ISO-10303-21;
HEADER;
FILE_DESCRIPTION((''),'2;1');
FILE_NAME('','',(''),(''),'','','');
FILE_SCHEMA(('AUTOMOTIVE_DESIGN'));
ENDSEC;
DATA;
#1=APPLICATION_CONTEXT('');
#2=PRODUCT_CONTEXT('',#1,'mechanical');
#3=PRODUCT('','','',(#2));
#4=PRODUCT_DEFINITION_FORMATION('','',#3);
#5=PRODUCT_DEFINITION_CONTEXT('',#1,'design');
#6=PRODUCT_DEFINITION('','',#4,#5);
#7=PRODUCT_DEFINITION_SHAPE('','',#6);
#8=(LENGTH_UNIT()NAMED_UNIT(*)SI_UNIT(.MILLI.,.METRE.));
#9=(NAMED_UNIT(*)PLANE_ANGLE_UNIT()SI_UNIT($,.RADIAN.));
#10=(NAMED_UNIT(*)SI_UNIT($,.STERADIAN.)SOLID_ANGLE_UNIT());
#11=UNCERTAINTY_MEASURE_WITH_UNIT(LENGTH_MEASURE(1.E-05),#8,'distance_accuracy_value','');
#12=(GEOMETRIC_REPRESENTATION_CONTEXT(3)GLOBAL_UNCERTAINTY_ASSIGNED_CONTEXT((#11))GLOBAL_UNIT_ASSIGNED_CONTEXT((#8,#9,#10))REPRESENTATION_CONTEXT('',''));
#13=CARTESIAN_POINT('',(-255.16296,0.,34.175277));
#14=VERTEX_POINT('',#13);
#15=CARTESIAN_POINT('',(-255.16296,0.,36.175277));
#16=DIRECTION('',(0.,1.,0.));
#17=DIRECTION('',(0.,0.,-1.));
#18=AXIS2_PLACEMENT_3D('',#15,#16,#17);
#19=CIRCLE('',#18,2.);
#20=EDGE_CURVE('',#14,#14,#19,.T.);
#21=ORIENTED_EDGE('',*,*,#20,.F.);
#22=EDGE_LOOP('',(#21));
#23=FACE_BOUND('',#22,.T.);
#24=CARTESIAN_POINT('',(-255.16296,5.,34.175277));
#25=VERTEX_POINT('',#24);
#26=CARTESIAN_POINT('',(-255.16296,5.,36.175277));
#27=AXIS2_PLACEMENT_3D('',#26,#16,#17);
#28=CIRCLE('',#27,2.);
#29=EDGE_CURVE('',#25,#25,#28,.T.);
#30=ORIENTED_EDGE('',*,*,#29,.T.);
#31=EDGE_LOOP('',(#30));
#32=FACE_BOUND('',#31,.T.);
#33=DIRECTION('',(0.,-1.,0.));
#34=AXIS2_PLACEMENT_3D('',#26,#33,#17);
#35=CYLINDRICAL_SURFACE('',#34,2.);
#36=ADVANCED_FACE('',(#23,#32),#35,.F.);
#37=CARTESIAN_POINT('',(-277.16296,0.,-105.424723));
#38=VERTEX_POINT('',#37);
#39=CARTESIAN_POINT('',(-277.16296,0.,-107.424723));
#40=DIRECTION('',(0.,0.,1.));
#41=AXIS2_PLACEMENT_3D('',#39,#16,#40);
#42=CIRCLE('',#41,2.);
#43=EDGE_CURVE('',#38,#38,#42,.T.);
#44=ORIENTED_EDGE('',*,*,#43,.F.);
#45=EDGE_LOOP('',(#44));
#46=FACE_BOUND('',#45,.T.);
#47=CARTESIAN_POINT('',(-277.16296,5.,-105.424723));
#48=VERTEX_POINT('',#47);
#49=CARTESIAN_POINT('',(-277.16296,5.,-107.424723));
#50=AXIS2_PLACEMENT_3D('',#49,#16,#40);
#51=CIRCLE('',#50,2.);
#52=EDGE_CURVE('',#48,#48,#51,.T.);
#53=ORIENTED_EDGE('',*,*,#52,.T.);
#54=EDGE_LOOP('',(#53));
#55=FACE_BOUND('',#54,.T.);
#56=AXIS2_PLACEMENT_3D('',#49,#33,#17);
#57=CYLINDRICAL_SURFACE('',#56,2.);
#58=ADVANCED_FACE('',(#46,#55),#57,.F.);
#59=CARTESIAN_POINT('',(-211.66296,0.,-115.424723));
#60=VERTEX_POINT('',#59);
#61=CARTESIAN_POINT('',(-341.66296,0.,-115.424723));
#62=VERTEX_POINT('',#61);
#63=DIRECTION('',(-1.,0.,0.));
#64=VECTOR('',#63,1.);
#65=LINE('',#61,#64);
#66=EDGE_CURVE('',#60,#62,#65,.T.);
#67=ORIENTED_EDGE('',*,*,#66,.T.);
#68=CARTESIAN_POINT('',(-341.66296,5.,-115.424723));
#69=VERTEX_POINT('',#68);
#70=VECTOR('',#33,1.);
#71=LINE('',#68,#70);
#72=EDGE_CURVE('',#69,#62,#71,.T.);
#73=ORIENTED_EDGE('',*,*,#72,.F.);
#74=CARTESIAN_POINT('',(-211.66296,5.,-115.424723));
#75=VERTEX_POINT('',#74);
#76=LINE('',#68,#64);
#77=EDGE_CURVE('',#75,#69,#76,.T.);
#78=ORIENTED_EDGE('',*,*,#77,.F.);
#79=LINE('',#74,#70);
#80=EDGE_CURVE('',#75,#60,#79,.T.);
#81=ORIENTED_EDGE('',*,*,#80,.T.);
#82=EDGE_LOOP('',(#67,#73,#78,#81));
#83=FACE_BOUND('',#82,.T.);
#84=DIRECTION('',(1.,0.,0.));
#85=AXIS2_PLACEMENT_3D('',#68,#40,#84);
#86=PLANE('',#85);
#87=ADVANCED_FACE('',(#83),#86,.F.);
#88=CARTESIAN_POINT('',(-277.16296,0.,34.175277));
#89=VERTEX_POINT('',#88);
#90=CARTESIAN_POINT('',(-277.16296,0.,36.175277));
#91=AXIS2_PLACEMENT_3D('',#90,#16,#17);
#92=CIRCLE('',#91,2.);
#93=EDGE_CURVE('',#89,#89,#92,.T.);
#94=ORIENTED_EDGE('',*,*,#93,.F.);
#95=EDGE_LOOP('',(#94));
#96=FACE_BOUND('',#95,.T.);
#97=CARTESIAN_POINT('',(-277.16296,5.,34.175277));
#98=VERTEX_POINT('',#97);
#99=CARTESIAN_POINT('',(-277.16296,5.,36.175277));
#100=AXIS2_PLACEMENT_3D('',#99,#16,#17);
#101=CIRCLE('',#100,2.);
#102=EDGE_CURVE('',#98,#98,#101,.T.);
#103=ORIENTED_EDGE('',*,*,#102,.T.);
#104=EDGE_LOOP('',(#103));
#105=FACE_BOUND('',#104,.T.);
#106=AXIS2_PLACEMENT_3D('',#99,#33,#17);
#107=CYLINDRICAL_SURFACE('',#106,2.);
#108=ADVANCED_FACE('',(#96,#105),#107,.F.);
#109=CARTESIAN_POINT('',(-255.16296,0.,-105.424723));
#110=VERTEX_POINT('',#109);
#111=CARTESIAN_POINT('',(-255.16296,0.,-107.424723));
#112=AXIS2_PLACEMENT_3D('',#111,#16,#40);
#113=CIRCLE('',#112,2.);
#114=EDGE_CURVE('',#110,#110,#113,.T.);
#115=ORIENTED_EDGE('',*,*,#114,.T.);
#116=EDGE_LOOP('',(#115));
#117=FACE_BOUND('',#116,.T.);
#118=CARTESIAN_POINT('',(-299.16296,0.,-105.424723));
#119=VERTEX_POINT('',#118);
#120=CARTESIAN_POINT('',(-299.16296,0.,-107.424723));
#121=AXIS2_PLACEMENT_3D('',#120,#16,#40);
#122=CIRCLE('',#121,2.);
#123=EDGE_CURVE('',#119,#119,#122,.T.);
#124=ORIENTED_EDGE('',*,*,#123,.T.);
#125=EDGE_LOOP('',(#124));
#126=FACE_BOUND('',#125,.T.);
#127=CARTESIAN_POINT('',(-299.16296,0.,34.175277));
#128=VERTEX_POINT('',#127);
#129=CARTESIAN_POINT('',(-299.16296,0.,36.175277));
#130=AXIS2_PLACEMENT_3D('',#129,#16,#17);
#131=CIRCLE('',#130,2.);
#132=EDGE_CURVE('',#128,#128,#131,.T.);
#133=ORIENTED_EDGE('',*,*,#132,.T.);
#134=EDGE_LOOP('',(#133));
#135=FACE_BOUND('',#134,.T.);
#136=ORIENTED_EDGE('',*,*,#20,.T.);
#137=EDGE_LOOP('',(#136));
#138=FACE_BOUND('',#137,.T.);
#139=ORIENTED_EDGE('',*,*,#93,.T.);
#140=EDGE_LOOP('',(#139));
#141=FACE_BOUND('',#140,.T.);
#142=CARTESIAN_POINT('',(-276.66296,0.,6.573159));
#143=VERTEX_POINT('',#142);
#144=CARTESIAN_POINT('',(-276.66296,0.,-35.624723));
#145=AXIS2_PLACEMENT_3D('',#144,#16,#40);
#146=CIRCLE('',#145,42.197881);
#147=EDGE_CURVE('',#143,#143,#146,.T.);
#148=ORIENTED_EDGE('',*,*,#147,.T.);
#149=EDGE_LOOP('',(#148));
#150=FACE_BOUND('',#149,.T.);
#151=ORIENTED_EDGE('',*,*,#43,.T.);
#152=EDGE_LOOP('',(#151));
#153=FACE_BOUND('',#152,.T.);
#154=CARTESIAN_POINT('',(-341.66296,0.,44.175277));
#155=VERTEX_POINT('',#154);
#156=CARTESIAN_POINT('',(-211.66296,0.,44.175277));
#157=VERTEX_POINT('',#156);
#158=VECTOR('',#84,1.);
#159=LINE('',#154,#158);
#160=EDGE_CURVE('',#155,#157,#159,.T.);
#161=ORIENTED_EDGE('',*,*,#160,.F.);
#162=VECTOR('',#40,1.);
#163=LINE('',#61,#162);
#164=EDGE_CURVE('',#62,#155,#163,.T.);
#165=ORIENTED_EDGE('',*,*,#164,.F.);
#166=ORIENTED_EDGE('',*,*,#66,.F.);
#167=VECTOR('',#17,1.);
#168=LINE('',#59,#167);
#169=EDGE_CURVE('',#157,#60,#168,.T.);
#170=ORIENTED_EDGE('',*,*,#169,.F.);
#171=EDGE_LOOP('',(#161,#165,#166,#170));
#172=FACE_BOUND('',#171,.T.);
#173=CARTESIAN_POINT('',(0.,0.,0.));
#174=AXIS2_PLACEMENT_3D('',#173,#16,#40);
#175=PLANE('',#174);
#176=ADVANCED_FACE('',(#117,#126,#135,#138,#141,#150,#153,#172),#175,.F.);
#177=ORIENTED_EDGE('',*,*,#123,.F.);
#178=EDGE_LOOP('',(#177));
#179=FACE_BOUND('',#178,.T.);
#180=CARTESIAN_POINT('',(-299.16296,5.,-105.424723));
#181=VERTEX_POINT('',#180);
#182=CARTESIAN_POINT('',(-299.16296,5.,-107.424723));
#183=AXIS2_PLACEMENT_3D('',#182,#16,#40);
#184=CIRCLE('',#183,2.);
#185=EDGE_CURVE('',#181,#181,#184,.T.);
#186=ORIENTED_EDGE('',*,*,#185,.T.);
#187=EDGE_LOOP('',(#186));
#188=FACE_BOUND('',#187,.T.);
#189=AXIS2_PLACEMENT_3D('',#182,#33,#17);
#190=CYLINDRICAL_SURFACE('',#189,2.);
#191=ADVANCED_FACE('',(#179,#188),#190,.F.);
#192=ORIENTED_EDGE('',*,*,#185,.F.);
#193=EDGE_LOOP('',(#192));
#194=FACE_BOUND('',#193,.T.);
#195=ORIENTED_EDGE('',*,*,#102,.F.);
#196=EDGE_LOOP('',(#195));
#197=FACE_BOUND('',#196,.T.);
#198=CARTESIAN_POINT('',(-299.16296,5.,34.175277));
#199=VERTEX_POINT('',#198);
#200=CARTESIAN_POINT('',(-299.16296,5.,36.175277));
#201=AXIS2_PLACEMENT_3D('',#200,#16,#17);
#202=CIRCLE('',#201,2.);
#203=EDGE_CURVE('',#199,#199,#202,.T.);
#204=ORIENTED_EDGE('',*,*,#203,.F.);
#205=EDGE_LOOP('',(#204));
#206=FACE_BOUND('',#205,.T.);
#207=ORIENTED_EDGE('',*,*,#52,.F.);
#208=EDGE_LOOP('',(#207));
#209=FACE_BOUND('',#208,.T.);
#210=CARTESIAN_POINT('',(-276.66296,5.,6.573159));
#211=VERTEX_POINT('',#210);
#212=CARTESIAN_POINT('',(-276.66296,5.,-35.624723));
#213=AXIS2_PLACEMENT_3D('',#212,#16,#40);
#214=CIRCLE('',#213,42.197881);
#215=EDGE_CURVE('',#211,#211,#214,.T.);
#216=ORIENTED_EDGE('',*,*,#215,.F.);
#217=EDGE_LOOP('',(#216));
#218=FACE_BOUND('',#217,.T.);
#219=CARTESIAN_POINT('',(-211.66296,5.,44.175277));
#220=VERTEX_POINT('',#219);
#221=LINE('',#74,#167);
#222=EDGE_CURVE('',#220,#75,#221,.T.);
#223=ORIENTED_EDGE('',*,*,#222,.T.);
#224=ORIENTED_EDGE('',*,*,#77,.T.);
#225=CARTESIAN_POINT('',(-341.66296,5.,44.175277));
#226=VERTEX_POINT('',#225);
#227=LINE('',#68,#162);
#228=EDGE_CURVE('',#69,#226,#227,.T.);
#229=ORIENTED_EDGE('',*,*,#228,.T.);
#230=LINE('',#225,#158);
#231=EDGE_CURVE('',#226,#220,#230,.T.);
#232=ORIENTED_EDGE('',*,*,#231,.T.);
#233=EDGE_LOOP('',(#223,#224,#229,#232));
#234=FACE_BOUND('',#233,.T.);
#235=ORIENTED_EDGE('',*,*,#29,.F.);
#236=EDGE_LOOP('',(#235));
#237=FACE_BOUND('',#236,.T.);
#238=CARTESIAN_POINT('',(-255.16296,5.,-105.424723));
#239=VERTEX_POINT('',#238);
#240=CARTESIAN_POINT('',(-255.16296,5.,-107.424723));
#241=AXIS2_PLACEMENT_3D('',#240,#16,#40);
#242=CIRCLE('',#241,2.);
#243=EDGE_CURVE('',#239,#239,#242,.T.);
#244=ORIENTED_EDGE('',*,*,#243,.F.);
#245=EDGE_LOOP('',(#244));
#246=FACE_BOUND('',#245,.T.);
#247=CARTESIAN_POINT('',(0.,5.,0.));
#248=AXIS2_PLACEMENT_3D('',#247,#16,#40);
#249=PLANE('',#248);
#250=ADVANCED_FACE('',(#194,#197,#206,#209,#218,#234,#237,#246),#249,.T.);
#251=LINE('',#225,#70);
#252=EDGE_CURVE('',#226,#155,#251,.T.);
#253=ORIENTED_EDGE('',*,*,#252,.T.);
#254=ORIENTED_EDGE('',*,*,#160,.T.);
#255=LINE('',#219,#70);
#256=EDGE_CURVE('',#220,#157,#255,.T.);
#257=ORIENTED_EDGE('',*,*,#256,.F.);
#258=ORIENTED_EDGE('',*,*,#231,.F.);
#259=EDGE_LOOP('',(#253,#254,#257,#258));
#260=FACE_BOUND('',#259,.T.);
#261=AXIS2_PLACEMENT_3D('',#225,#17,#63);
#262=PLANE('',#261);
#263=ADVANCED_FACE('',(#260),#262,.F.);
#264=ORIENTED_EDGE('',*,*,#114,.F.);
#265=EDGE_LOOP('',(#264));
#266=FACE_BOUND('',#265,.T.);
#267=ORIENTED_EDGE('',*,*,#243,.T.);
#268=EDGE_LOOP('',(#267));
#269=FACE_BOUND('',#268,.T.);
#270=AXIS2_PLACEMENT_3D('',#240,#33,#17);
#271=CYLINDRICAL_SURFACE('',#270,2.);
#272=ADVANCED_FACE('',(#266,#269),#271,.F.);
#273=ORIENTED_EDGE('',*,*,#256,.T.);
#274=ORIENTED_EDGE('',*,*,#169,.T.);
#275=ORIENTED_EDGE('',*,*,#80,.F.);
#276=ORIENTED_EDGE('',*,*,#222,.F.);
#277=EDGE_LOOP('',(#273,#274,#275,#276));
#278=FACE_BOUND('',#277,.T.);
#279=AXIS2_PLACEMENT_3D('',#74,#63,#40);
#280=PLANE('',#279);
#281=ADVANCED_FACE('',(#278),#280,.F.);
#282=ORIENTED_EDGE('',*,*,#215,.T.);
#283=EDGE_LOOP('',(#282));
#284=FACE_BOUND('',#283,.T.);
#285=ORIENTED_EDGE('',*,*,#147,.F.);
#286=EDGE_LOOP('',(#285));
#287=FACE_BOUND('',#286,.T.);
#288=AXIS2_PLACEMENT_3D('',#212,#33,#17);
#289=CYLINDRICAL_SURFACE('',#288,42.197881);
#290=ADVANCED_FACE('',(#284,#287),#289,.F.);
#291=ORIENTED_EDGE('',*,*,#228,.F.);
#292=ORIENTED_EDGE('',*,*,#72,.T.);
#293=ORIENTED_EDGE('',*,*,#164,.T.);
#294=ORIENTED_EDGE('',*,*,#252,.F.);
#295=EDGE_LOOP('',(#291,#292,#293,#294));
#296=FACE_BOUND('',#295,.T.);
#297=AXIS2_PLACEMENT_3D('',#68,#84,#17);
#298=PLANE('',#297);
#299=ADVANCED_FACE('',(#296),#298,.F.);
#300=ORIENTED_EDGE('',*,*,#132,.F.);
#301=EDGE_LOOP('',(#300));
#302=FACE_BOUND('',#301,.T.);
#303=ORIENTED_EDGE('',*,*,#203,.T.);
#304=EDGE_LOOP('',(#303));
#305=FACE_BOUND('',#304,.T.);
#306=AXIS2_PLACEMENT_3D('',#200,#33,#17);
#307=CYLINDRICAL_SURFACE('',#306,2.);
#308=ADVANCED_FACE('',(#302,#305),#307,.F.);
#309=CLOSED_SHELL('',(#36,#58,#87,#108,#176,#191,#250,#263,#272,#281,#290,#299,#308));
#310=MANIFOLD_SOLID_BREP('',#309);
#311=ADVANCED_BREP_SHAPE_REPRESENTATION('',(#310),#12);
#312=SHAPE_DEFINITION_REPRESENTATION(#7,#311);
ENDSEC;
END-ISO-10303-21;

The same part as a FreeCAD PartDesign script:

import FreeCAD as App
import Part
import Sketcher
from FreeCAD import Vector
Q = App.Units.Quantity


def add_polygon(sketch, points):
    """Adds a closed chain of lines whose ends are joined by coincident constraints."""
    first, n = sketch.GeometryCount, len(points)
    for a, b in zip(points, points[1:] + points[:1]):
        sketch.addGeometry(Part.LineSegment(App.Vector(*a, 0), App.Vector(*b, 0)), False)
    for i in range(n):
        sketch.addConstraint(Sketcher.Constraint("Coincident", first + i, 2, first + (i + 1) % n, 1))

doc = App.newDocument("Part")
body = doc.addObject("PartDesign::Body", "Body")

# Sketch on XZ plane
sketch1 = body.newObject("Sketcher::SketchObject", "Sketch")
sketch1.AttachmentSupport = (doc.getObject("XZ_Plane"), [""])
sketch1.MapMode = "FlatFace"
add_polygon(sketch1, [(-341.7, -115.4), (-341.7, 44.2), (-211.7, 44.2), (-211.7, -115.4)])  # lines 0-3
sketch1.addGeometry(Part.Circle(Vector(-299.2, 36.2, 0), Vector(0, 0, 1), 2), False)  # 4
sketch1.addGeometry(Part.Circle(Vector(-277.2, 36.2, 0), Vector(0, 0, 1), 2), False)  # 5
sketch1.addGeometry(Part.Circle(Vector(-255.2, 36.2, 0), Vector(0, 0, 1), 2), False)  # 6
sketch1.addGeometry(Part.Circle(Vector(-276.7, -35.6, 0), Vector(0, 0, 1), 42.2), False)  # 7
sketch1.addGeometry(Part.Circle(Vector(-299.2, -107.4, 0), Vector(0, 0, 1), 2), False)  # 8
sketch1.addGeometry(Part.Circle(Vector(-277.2, -107.4, 0), Vector(0, 0, 1), 2), False)  # 9
sketch1.addGeometry(Part.Circle(Vector(-255.2, -107.4, 0), Vector(0, 0, 1), 2), False)  # 10
sketch1.addConstraint(Sketcher.Constraint("Vertical", 0))
sketch1.addConstraint(Sketcher.Constraint("Horizontal", 1))
sketch1.addConstraint(Sketcher.Constraint("Vertical", 2))
sketch1.addConstraint(Sketcher.Constraint("Horizontal", 3))
sketch1.addConstraint(Sketcher.Constraint("Equal", 4, 5))
sketch1.addConstraint(Sketcher.Constraint("Equal", 5, 6))
sketch1.addConstraint(Sketcher.Constraint("Equal", 6, 8))
sketch1.addConstraint(Sketcher.Constraint("Equal", 8, 9))
sketch1.addConstraint(Sketcher.Constraint("Equal", 9, 10))
sketch1.addConstraint(Sketcher.Constraint("Horizontal", 4, 3, 5, 3))
sketch1.addConstraint(Sketcher.Constraint("Horizontal", 5, 3, 6, 3))
sketch1.addConstraint(Sketcher.Constraint("Horizontal", 8, 3, 9, 3))
sketch1.addConstraint(Sketcher.Constraint("Horizontal", 9, 3, 10, 3))
sketch1.addConstraint(Sketcher.Constraint("Vertical", 4, 3, 8, 3))
sketch1.addConstraint(Sketcher.Constraint("Vertical", 5, 3, 9, 3))
sketch1.addConstraint(Sketcher.Constraint("Vertical", 6, 3, 10, 3))
sketch1.addConstraint(Sketcher.Constraint("Diameter", 4, Q("4 mm")))
sketch1.addConstraint(Sketcher.Constraint("DistanceX", 1, 1, 1, 2, Q("130 mm")))
sketch1.addConstraint(Sketcher.Constraint("DistanceY", 0, 1, 0, 2, Q("159.6 mm")))
sketch1.addConstraint(Sketcher.Constraint("DistanceX", 4, 3, 5, 3, Q("22 mm")))
sketch1.addConstraint(Sketcher.Constraint("DistanceX", 5, 3, 6, 3, Q("22 mm")))
sketch1.addConstraint(Sketcher.Constraint("DistanceY", 4, 3, 0, 2, Q("8 mm")))
sketch1.addConstraint(Sketcher.Constraint("DistanceX", 0, 2, 7, 3, Q("65 mm")))
sketch1.addConstraint(Sketcher.Constraint("DistanceY", 2, 2, 10, 3, Q("8 mm")))
sketch1.addConstraint(Sketcher.Constraint("DistanceX", 5, 3, 7, 3, Q("0.5 mm")))
sketch1.addConstraint(Sketcher.Constraint("DistanceY", 7, 3, 5, 3, Q("71.8 mm")))
sketch1.addConstraint(Sketcher.Constraint("Diameter", 7, Q("84.395763 mm")))
sketch1.addConstraint(Sketcher.Constraint("DistanceX", 4, 3, -1, 1, Q("299.16296 mm")))
sketch1.addConstraint(Sketcher.Constraint("DistanceY", -1, 1, 4, 3, Q("36.175277 mm")))
pad1 = body.newObject("PartDesign::Pad", "Pad")
pad1.Profile = sketch1
pad1.Length = 5
pad1.Reversed = True

doc.recompute()
